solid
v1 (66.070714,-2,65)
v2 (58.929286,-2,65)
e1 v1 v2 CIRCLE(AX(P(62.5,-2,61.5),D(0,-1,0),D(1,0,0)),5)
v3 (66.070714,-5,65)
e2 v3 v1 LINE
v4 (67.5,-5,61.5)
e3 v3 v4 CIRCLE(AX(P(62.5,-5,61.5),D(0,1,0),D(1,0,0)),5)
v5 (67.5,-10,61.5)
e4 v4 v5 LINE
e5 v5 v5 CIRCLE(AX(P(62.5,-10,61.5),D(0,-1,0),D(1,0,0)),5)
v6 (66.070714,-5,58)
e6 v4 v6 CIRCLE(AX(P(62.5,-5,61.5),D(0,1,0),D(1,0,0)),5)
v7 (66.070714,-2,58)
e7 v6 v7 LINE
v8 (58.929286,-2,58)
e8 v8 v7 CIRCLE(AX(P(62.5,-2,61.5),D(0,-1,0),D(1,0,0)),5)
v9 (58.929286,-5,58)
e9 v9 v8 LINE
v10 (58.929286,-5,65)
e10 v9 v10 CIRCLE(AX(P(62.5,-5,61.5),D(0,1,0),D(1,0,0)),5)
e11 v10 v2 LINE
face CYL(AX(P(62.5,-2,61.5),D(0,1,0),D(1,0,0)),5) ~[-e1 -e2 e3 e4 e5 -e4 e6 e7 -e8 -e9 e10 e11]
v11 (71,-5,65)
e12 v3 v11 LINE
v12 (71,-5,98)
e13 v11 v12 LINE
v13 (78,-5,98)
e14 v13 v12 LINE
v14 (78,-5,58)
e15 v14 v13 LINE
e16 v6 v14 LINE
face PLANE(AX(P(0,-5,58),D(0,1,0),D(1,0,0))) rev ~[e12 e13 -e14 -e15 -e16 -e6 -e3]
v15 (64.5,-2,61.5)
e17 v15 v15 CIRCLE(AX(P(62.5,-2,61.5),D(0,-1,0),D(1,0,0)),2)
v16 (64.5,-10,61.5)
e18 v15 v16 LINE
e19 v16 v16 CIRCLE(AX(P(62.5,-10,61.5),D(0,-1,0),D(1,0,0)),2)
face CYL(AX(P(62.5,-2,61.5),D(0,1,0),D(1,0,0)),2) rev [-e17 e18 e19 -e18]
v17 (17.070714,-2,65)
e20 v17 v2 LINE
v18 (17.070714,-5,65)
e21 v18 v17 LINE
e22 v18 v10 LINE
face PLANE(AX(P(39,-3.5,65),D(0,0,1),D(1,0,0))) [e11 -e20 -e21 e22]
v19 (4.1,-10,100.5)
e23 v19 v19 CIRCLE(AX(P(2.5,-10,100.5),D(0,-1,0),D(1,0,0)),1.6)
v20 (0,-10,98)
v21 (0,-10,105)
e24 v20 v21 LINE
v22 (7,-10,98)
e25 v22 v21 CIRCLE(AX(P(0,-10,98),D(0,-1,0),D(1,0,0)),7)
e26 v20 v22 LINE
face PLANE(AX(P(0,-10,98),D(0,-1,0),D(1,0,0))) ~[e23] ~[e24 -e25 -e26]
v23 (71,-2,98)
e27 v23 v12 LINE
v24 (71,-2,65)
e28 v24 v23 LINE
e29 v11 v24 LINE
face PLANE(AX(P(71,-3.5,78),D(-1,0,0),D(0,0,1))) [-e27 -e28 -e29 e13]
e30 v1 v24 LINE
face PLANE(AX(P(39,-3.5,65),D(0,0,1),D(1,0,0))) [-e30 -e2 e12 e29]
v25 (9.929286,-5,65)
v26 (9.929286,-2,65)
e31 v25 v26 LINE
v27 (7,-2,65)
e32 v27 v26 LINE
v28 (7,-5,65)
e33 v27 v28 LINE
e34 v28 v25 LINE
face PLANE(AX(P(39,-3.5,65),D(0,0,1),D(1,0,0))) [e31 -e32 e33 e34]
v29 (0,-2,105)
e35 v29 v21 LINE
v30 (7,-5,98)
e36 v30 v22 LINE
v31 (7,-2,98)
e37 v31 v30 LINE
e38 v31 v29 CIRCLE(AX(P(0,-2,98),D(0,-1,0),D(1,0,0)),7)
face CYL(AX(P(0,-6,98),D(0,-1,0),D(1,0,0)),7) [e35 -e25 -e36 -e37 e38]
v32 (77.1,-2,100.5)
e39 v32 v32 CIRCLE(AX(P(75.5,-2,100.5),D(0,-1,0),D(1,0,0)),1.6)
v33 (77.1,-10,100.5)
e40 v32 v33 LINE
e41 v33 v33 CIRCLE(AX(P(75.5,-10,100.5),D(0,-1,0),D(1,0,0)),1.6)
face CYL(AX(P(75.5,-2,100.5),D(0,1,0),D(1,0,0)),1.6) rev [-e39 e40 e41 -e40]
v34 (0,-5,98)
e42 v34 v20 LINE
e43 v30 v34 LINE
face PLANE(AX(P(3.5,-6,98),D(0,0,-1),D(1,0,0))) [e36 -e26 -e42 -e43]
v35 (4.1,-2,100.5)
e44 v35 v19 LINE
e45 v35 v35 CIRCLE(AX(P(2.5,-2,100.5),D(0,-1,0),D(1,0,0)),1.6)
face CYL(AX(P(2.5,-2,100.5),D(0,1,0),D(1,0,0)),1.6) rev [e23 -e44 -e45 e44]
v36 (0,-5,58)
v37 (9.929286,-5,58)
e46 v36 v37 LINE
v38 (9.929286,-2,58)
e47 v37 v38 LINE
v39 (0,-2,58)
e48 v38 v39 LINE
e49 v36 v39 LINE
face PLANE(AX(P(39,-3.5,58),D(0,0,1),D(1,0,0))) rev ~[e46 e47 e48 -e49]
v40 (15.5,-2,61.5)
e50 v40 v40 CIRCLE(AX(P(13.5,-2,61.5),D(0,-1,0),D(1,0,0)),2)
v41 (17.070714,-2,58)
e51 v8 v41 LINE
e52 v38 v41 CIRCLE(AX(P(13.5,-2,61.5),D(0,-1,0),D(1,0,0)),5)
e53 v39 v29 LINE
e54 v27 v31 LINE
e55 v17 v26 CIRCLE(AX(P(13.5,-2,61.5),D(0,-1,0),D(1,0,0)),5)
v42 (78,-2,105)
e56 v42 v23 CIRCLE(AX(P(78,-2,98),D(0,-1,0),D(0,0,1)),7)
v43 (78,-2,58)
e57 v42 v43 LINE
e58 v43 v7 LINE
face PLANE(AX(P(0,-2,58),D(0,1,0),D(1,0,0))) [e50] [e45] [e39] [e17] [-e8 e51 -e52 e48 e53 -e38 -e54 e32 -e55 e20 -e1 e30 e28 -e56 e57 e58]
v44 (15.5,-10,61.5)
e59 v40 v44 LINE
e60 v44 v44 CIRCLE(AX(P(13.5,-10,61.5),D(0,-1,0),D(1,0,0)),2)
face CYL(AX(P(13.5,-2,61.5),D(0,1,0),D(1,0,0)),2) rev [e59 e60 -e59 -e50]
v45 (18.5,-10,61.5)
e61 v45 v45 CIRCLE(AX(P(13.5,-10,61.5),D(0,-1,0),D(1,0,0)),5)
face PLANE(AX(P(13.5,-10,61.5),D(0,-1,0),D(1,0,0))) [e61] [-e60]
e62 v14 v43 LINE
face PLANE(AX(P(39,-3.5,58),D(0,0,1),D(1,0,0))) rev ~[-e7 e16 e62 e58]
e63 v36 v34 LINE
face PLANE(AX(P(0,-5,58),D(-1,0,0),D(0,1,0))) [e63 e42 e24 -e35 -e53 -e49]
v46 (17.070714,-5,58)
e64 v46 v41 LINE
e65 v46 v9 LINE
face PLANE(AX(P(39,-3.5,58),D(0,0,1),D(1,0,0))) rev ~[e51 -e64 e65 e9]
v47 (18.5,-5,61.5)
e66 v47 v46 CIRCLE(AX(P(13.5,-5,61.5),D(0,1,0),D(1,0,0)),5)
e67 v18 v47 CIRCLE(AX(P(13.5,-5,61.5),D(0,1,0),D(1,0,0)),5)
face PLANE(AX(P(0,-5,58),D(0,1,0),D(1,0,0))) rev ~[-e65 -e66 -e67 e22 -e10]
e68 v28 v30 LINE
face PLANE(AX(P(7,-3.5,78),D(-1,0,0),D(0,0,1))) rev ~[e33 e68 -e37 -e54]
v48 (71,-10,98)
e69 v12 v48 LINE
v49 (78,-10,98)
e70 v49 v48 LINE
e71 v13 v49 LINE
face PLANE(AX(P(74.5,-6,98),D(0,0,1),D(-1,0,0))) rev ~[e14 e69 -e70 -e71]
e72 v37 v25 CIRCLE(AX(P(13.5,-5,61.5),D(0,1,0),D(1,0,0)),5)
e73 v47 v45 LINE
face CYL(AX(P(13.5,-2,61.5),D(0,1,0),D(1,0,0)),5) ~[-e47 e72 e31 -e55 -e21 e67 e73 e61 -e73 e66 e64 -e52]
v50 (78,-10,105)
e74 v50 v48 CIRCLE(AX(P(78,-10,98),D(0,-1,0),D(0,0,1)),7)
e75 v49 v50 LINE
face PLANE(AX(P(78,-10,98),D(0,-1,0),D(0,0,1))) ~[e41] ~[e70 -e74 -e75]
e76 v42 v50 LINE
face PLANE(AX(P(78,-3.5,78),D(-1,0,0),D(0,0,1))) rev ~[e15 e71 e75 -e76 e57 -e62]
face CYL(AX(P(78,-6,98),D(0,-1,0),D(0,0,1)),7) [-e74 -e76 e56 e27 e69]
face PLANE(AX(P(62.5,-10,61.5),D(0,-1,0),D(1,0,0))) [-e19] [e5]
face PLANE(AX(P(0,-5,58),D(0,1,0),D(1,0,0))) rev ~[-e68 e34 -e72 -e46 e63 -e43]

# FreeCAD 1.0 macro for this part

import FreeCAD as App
import Part
import Sketcher

V = App.Vector
Q = App.Units.Quantity


def add_polygon(sketch, points):
    """Adds a closed chain of lines whose ends are joined by coincident constraints."""
    first, n = sketch.GeometryCount, len(points)
    for a, b in zip(points, points[1:] + points[:1]):
        sketch.addGeometry(Part.LineSegment(App.Vector(*a, 0), App.Vector(*b, 0)), False)
    for i in range(n):
        sketch.addConstraint(Sketcher.Constraint("Coincident", first + i, 2, first + (i + 1) % n, 1))

doc = App.newDocument("Part")
params = doc.addObject("Spreadsheet::Sheet", "Params")
for row, (alias, value) in enumerate([
    ("sketch1_diameter", "4 mm"),
    ("pad1_length", "8 mm"),
    ("sketch2_diameter", "4 mm"),
    ("pad2_length", "8 mm"),
    ("sketch3_diameter", "3.2 mm"),
    ("pad3_length", "8 mm"),
    ("sketch4_diameter", "3.2 mm"),
    ("pad4_length", "8 mm"),
    ("sketch5_width", "7 mm"),
    ("sketch5_height", "8 mm"),
    ("revolution_angle", "90 deg"),
    ("sketch6_width", "78 mm"),
    ("sketch6_height", "3 mm"),
    ("pad5_length", "7 mm"),
    ("sketch7_width", "3 mm"),
    ("sketch7_height", "40 mm"),
    ("pad6_length", "7 mm"),
    ("sketch8_diameter", "10 mm"),
    ("pad7_length", "8 mm"),
    ("sketch9_diameter", "10 mm"),
    ("pad8_length", "8 mm"),
    ("sketch10_width", "3 mm"),
    ("sketch10_height", "40 mm"),
    ("pad9_length", "7 mm"),
    ("sketch11_width", "8 mm"),
    ("sketch11_height", "7 mm"),
    ("revolution2_angle", "90 deg"),
], start=1):
    params.set(f"A{row}", alias)
    params.set(f"B{row}", "=" + value)
    params.setAlias(f"B{row}", alias)

body = doc.addObject("PartDesign::Body", "Body")

sketch1 = doc.addObject("Sketcher::SketchObject", "Sketch")
body.addObject(sketch1)
sketch1.AttachmentSupport = (doc.XZ_Plane, [""])
sketch1.MapMode = "FlatFace"
sketch1.AttachmentOffset = App.Placement(V(0, 0, 2), App.Rotation())
sketch1.addGeometry(Part.Circle(V(13.5, 61.5, 0), V(0, 0, 1), 2), False)
sketch1.addConstraint(Sketcher.Constraint("Diameter", 0, Q("4 mm")))
sketch1.addConstraint(Sketcher.Constraint("DistanceX", -1, 1, 0, 3, Q("13.5 mm")))
sketch1.addConstraint(Sketcher.Constraint("DistanceY", -1, 1, 0, 3, Q("61.5 mm")))
sketch1.setExpression("Constraints[0]", "Params.sketch1_diameter")
pad1 = doc.addObject("PartDesign::Pad", "Pad")
body.addObject(pad1)
pad1.Profile = sketch1
pad1.setExpression("Length", "Params.pad1_length")
body2 = doc.addObject("PartDesign::Body", "Body001")

sketch2 = doc.addObject("Sketcher::SketchObject", "Sketch001")
body2.addObject(sketch2)
sketch2.AttachmentSupport = (doc.getObject("XZ_Plane001"), [""])
sketch2.MapMode = "FlatFace"
sketch2.AttachmentOffset = App.Placement(V(0, 0, 2), App.Rotation())
sketch2.addGeometry(Part.Circle(V(62.5, 61.5, 0), V(0, 0, 1), 2), False)
sketch2.addConstraint(Sketcher.Constraint("Diameter", 0, Q("4 mm")))
sketch2.addConstraint(Sketcher.Constraint("DistanceX", -1, 1, 0, 3, Q("62.5 mm")))
sketch2.addConstraint(Sketcher.Constraint("DistanceY", -1, 1, 0, 3, Q("61.5 mm")))
sketch2.setExpression("Constraints[0]", "Params.sketch2_diameter")
pad2 = doc.addObject("PartDesign::Pad", "Pad001")
body2.addObject(pad2)
pad2.Profile = sketch2
pad2.setExpression("Length", "Params.pad2_length")
body3 = doc.addObject("PartDesign::Body", "Body002")

sketch3 = doc.addObject("Sketcher::SketchObject", "Sketch002")
body3.addObject(sketch3)
sketch3.AttachmentSupport = (doc.getObject("XZ_Plane002"), [""])
sketch3.MapMode = "FlatFace"
sketch3.AttachmentOffset = App.Placement(V(0, 0, 2), App.Rotation())
sketch3.addGeometry(Part.Circle(V(75.5, 100.5, 0), V(0, 0, 1), 1.6), False)
sketch3.addConstraint(Sketcher.Constraint("Diameter", 0, Q("3.2 mm")))
sketch3.addConstraint(Sketcher.Constraint("DistanceX", -1, 1, 0, 3, Q("75.5 mm")))
sketch3.addConstraint(Sketcher.Constraint("DistanceY", -1, 1, 0, 3, Q("100.5 mm")))
sketch3.setExpression("Constraints[0]", "Params.sketch3_diameter")
pad3 = doc.addObject("PartDesign::Pad", "Pad002")
body3.addObject(pad3)
pad3.Profile = sketch3
pad3.setExpression("Length", "Params.pad3_length")
body4 = doc.addObject("PartDesign::Body", "Body003")
body4.AllowCompound = True

sketch4 = doc.addObject("Sketcher::SketchObject", "Sketch003")
body4.addObject(sketch4)
sketch4.AttachmentSupport = (doc.getObject("XZ_Plane003"), [""])
sketch4.MapMode = "FlatFace"
sketch4.AttachmentOffset = App.Placement(V(0, 0, 2), App.Rotation())
sketch4.addGeometry(Part.Circle(V(2.5, 100.5, 0), V(0, 0, 1), 1.6), False)
sketch4.addConstraint(Sketcher.Constraint("Diameter", 0, Q("3.2 mm")))
sketch4.addConstraint(Sketcher.Constraint("DistanceX", -1, 1, 0, 3, Q("2.5 mm")))
sketch4.addConstraint(Sketcher.Constraint("DistanceY", -1, 1, 0, 3, Q("100.5 mm")))
sketch4.setExpression("Constraints[0]", "Params.sketch4_diameter")
pad4 = doc.addObject("PartDesign::Pad", "Pad003")
body4.addObject(pad4)
pad4.Profile = sketch4
pad4.setExpression("Length", "Params.pad4_length")
doc.recompute()

boolean = doc.addObject("PartDesign::Boolean", "Boolean")
body4.addObject(boolean)
boolean.Type = "Fuse"
boolean.addObjects([body])
doc.recompute()

boolean2 = doc.addObject("PartDesign::Boolean", "Boolean001")
body4.addObject(boolean2)
boolean2.Type = "Fuse"
boolean2.addObjects([body2])
doc.recompute()

boolean3 = doc.addObject("PartDesign::Boolean", "Boolean002")
body4.addObject(boolean3)
boolean3.Type = "Fuse"
boolean3.addObjects([body3])
body5 = doc.addObject("PartDesign::Body", "Body004")

sketch5 = doc.addObject("Sketcher::SketchObject", "Sketch004")
body5.addObject(sketch5)
sketch5.AttachmentSupport = (doc.getObject("XY_Plane004"), [""])
sketch5.MapMode = "FlatFace"
sketch5.AttachmentOffset = App.Placement(V(0, 0, 98), App.Rotation())
add_polygon(sketch5, [(0, -10), (0, -2), (7, -2), (7, -10)])
sketch5.addConstraint(Sketcher.Constraint("Vertical", 0))
sketch5.addConstraint(Sketcher.Constraint("Horizontal", 1))
sketch5.addConstraint(Sketcher.Constraint("Vertical", 2))
sketch5.addConstraint(Sketcher.Constraint("Horizontal", 3))
sketch5.addConstraint(Sketcher.Constraint("PointOnObject", 0, 2, -2))
sketch5.addConstraint(Sketcher.Constraint("DistanceX", 1, 1, 1, 2, Q("7 mm")))
sketch5.addConstraint(Sketcher.Constraint("DistanceY", 0, 1, 0, 2, Q("8 mm")))
sketch5.addConstraint(Sketcher.Constraint("DistanceY", 0, 2, -1, 1, Q("2 mm")))
sketch5.setExpression("Constraints[9]", "Params.sketch5_width")
sketch5.setExpression("Constraints[10]", "Params.sketch5_height")
revolution = doc.addObject("PartDesign::Revolution", "Revolution")
body5.addObject(revolution)
revolution.Profile = sketch5
revolution.ReferenceAxis = (sketch5, ["V_Axis"])
revolution.setExpression("Angle", "Params.revolution_angle")
revolution.Reversed = True
body6 = doc.addObject("PartDesign::Body", "Body005")

sketch6 = doc.addObject("Sketcher::SketchObject", "Sketch005")
body6.addObject(sketch6)
sketch6.AttachmentSupport = (doc.getObject("XY_Plane005"), [""])
sketch6.MapMode = "FlatFace"
sketch6.AttachmentOffset = App.Placement(V(0, 0, 58), App.Rotation())
add_polygon(sketch6, [(0, -2), (0, -5), (78, -5), (78, -2)])
sketch6.addConstraint(Sketcher.Constraint("Vertical", 0))
sketch6.addConstraint(Sketcher.Constraint("Horizontal", 1))
sketch6.addConstraint(Sketcher.Constraint("Vertical", 2))
sketch6.addConstraint(Sketcher.Constraint("Horizontal", 3))
sketch6.addConstraint(Sketcher.Constraint("PointOnObject", 0, 2, -2))
sketch6.addConstraint(Sketcher.Constraint("DistanceX", 1, 1, 1, 2, Q("78 mm")))
sketch6.addConstraint(Sketcher.Constraint("DistanceY", 0, 2, 0, 1, Q("3 mm")))
sketch6.addConstraint(Sketcher.Constraint("DistanceY", 0, 2, -1, 1, Q("5 mm")))
sketch6.setExpression("Constraints[9]", "Params.sketch6_width")
sketch6.setExpression("Constraints[10]", "Params.sketch6_height")
pad5 = doc.addObject("PartDesign::Pad", "Pad004")
body6.addObject(pad5)
pad5.Profile = sketch6
pad5.setExpression("Length", "Params.pad5_length")
body7 = doc.addObject("PartDesign::Body", "Body006")

sketch7 = doc.addObject("Sketcher::SketchObject", "Sketch006")
body7.addObject(sketch7)
sketch7.AttachmentSupport = (doc.getObject("YZ_Plane006"), [""])
sketch7.MapMode = "FlatFace"
sketch7.AttachmentOffset = App.Placement(V(0, 0, 7), App.Rotation())
add_polygon(sketch7, [(-2, 58), (-5, 58), (-5, 98), (-2, 98)])
sketch7.addConstraint(Sketcher.Constraint("Horizontal", 0))
sketch7.addConstraint(Sketcher.Constraint("Vertical", 1))
sketch7.addConstraint(Sketcher.Constraint("Horizontal", 2))
sketch7.addConstraint(Sketcher.Constraint("Vertical", 3))
sketch7.addConstraint(Sketcher.Constraint("DistanceX", 0, 2, 0, 1, Q("3 mm")))
sketch7.addConstraint(Sketcher.Constraint("DistanceY", 1, 1, 1, 2, Q("40 mm")))
sketch7.addConstraint(Sketcher.Constraint("DistanceX", 0, 2, -1, 1, Q("5 mm")))
sketch7.addConstraint(Sketcher.Constraint("DistanceY", -1, 1, 0, 2, Q("58 mm")))
sketch7.setExpression("Constraints[8]", "Params.sketch7_width")
sketch7.setExpression("Constraints[9]", "Params.sketch7_height")
pad6 = doc.addObject("PartDesign::Pad", "Pad005")
body7.addObject(pad6)
pad6.Profile = sketch7
pad6.setExpression("Length", "Params.pad6_length")
pad6.Reversed = True
body8 = doc.addObject("PartDesign::Body", "Body007")

sketch8 = doc.addObject("Sketcher::SketchObject", "Sketch007")
body8.addObject(sketch8)
sketch8.AttachmentSupport = (doc.getObject("XZ_Plane007"), [""])
sketch8.MapMode = "FlatFace"
sketch8.AttachmentOffset = App.Placement(V(0, 0, 2), App.Rotation())
sketch8.addGeometry(Part.Circle(V(62, 62, 0), V(0, 0, 1), 5), False)
sketch8.addConstraint(Sketcher.Constraint("Diameter", 0, Q("10 mm")))
sketch8.addConstraint(Sketcher.Constraint("DistanceX", -1, 1, 0, 3, Q("62.5 mm")))
sketch8.addConstraint(Sketcher.Constraint("DistanceY", -1, 1, 0, 3, Q("61.5 mm")))
sketch8.setExpression("Constraints[0]", "Params.sketch8_diameter")
pad7 = doc.addObject("PartDesign::Pad", "Pad006")
body8.addObject(pad7)
pad7.Profile = sketch8
pad7.setExpression("Length", "Params.pad7_length")
body9 = doc.addObject("PartDesign::Body", "Body008")

sketch9 = doc.addObject("Sketcher::SketchObject", "Sketch008")
body9.addObject(sketch9)
sketch9.AttachmentSupport = (doc.getObject("XZ_Plane008"), [""])
sketch9.MapMode = "FlatFace"
sketch9.AttachmentOffset = App.Placement(V(0, 0, 2), App.Rotation())
sketch9.addGeometry(Part.Circle(V(14, 62, 0), V(0, 0, 1), 5), False)
sketch9.addConstraint(Sketcher.Constraint("Diameter", 0, Q("10 mm")))
sketch9.addConstraint(Sketcher.Constraint("DistanceX", -1, 1, 0, 3, Q("13.5 mm")))
sketch9.addConstraint(Sketcher.Constraint("DistanceY", -1, 1, 0, 3, Q("61.5 mm")))
sketch9.setExpression("Constraints[0]", "Params.sketch9_diameter")
pad8 = doc.addObject("PartDesign::Pad", "Pad007")
body9.addObject(pad8)
pad8.Profile = sketch9
pad8.setExpression("Length", "Params.pad8_length")
body10 = doc.addObject("PartDesign::Body", "Body009")

sketch10 = doc.addObject("Sketcher::SketchObject", "Sketch009")
body10.addObject(sketch10)
sketch10.AttachmentSupport = (doc.getObject("YZ_Plane009"), [""])
sketch10.MapMode = "FlatFace"
sketch10.AttachmentOffset = App.Placement(V(0, 0, 78), App.Rotation())
add_polygon(sketch10, [(-2, 58), (-5, 58), (-5, 98), (-2, 98)])
sketch10.addConstraint(Sketcher.Constraint("Horizontal", 0))
sketch10.addConstraint(Sketcher.Constraint("Vertical", 1))
sketch10.addConstraint(Sketcher.Constraint("Horizontal", 2))
sketch10.addConstraint(Sketcher.Constraint("Vertical", 3))
sketch10.addConstraint(Sketcher.Constraint("DistanceX", 0, 2, 0, 1, Q("3 mm")))
sketch10.addConstraint(Sketcher.Constraint("DistanceY", 1, 1, 1, 2, Q("40 mm")))
sketch10.addConstraint(Sketcher.Constraint("DistanceX", 0, 2, -1, 1, Q("5 mm")))
sketch10.addConstraint(Sketcher.Constraint("DistanceY", -1, 1, 0, 2, Q("58 mm")))
sketch10.setExpression("Constraints[8]", "Params.sketch10_width")
sketch10.setExpression("Constraints[9]", "Params.sketch10_height")
pad9 = doc.addObject("PartDesign::Pad", "Pad008")
body10.addObject(pad9)
pad9.Profile = sketch10
pad9.setExpression("Length", "Params.pad9_length")
pad9.Reversed = True
doc.recompute()

boolean4 = doc.addObject("PartDesign::Boolean", "Boolean003")
body10.addObject(boolean4)
boolean4.Type = "Fuse"
boolean4.addObjects([body6])
doc.recompute()

boolean5 = doc.addObject("PartDesign::Boolean", "Boolean004")
body10.addObject(boolean5)
boolean5.Type = "Fuse"
boolean5.addObjects([body7])
doc.recompute()

boolean6 = doc.addObject("PartDesign::Boolean", "Boolean005")
body10.addObject(boolean6)
boolean6.Type = "Fuse"
boolean6.addObjects([body8])
doc.recompute()

boolean7 = doc.addObject("PartDesign::Boolean", "Boolean006")
body10.addObject(boolean7)
boolean7.Type = "Fuse"
boolean7.addObjects([body9])
body11 = doc.addObject("PartDesign::Body", "Body010")
body11.AllowCompound = True

sketch11 = doc.addObject("Sketcher::SketchObject", "Sketch010")
body11.addObject(sketch11)
sketch11.AttachmentSupport = (doc.getObject("YZ_Plane010"), [""])
sketch11.MapMode = "FlatFace"
sketch11.AttachmentOffset = App.Placement(V(0, 0, 78), App.Rotation())
add_polygon(sketch11, [(-10, 98), (-2, 98), (-2, 105), (-10, 105)])
sketch11.addGeometry(Part.LineSegment(V(-2, 98, 0), V(-10, 98, 0)), True)
sketch11.addConstraint(Sketcher.Constraint("Horizontal", 0))
sketch11.addConstraint(Sketcher.Constraint("Vertical", 1))
sketch11.addConstraint(Sketcher.Constraint("Horizontal", 2))
sketch11.addConstraint(Sketcher.Constraint("Vertical", 3))
sketch11.addConstraint(Sketcher.Constraint("Horizontal", 4))
sketch11.addConstraint(Sketcher.Constraint("Coincident", 4, 1, 0, 2))
sketch11.addConstraint(Sketcher.Constraint("Vertical", 2, 2, 4, 2))
sketch11.addConstraint(Sketcher.Constraint("DistanceX", 0, 1, 0, 2, Q("8 mm")))
sketch11.addConstraint(Sketcher.Constraint("DistanceY", 1, 1, 1, 2, Q("7 mm")))
sketch11.addConstraint(Sketcher.Constraint("DistanceX", 0, 2, -1, 1, Q("2 mm")))
sketch11.addConstraint(Sketcher.Constraint("DistanceY", -1, 1, 0, 2, Q("98 mm")))
sketch11.setExpression("Constraints[11]", "Params.sketch11_width")
sketch11.setExpression("Constraints[12]", "Params.sketch11_height")
revolution2 = doc.addObject("PartDesign::Revolution", "Revolution001")
body11.addObject(revolution2)
revolution2.Profile = sketch11
revolution2.ReferenceAxis = (sketch11, ["Axis0"])
revolution2.setExpression("Angle", "Params.revolution2_angle")
doc.recompute()

boolean8 = doc.addObject("PartDesign::Boolean", "Boolean007")
body11.addObject(boolean8)
boolean8.Type = "Fuse"
boolean8.addObjects([body5])
doc.recompute()

boolean9 = doc.addObject("PartDesign::Boolean", "Boolean008")
body11.addObject(boolean9)
boolean9.Type = "Fuse"
boolean9.addObjects([body10])
doc.recompute()

boolean10 = doc.addObject("PartDesign::Boolean", "Boolean009")
body11.addObject(boolean10)
boolean10.Type = "Cut"
boolean10.addObjects([body4])

doc.recompute()
